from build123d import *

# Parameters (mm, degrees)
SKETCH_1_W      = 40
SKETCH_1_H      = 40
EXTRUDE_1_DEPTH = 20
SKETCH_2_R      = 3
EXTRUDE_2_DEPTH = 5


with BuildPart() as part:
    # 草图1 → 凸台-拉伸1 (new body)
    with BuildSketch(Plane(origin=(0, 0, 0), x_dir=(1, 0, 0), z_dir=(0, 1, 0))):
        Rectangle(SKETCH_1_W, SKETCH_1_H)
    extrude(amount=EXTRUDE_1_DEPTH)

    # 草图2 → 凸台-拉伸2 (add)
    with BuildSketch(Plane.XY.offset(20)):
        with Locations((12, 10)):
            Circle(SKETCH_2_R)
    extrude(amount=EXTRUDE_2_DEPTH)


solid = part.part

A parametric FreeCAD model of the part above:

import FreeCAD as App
import Part
import Sketcher

V = App.Vector


def add_polygon(sketch, points):
    """Adds a closed chain of lines whose ends are joined by coincident constraints."""
    first, n = sketch.GeometryCount, len(points)
    for a, b in zip(points, points[1:] + points[:1]):
        sketch.addGeometry(Part.LineSegment(App.Vector(*a, 0), App.Vector(*b, 0)), False)
    for i in range(n):
        sketch.addConstraint(Sketcher.Constraint("Coincident", first + i, 2, first + (i + 1) % n, 1))

doc = App.newDocument("Part")
params = doc.addObject("Spreadsheet::Sheet", "Params")
for row, (alias, value) in enumerate([
    ("sketch1_width", "40 mm"),
    ("pad1_length", "20 mm"),
    ("sketch2_diameter", "6 mm"),
    ("pad2_length", "5 mm"),
], start=1):
    params.set(f"A{row}", alias)
    params.set(f"B{row}", "=" + value)
    params.setAlias(f"B{row}", alias)

body = doc.addObject("PartDesign::Body", "Body")

sketch1 = body.newObject("Sketcher::SketchObject", "Sketch")
sketch1.AttachmentSupport = (doc.getObject("XZ_Plane"), [""])
sketch1.MapMode = "FlatFace"
add_polygon(sketch1, [(-20, -20), (-20, 20), (20, 20), (20, -20)])
sketch1.addConstraint(Sketcher.Constraint("Vertical", 0))
sketch1.addConstraint(Sketcher.Constraint("Horizontal", 1))
sketch1.addConstraint(Sketcher.Constraint("Vertical", 2))
sketch1.addConstraint(Sketcher.Constraint("Horizontal", 3))
sketch1.addConstraint(Sketcher.Constraint("Symmetric", 0, 2, 2, 2, -1, 1))
sketch1.addConstraint(Sketcher.Constraint("Equal", 3, 0))
sketch1.addConstraint(Sketcher.Constraint("DistanceX", 1, 1, 1, 2, 40.0))
sketch1.setExpression("Constraints[10]", "Params.sketch1_width")
pad1 = body.newObject("PartDesign::Pad", "Pad")
pad1.Profile = sketch1
pad1.setExpression("Length", "Params.pad1_length")
pad1.Reversed = True

sketch2 = body.newObject("Sketcher::SketchObject", "Sketch001")
sketch2.AttachmentSupport = (doc.getObject("XY_Plane"), [""])
sketch2.MapMode = "FlatFace"
sketch2.AttachmentOffset = App.Placement(V(0, 0, 20), App.Rotation())
sketch2.addGeometry(Part.Circle(V(12, 10, 0), V(0, 0, 1), 3), False)
sketch2.addConstraint(Sketcher.Constraint("Diameter", 0, 6.0))
sketch2.addConstraint(Sketcher.Constraint("DistanceX", -1, 1, 0, 3, 12.0))
sketch2.addConstraint(Sketcher.Constraint("DistanceY", -1, 1, 0, 3, 10.0))
sketch2.setExpression("Constraints[0]", "Params.sketch2_diameter")
pad2 = body.newObject("PartDesign::Pad", "Pad001")
pad2.Profile = sketch2
pad2.setExpression("Length", "Params.pad2_length")

doc.recompute()
